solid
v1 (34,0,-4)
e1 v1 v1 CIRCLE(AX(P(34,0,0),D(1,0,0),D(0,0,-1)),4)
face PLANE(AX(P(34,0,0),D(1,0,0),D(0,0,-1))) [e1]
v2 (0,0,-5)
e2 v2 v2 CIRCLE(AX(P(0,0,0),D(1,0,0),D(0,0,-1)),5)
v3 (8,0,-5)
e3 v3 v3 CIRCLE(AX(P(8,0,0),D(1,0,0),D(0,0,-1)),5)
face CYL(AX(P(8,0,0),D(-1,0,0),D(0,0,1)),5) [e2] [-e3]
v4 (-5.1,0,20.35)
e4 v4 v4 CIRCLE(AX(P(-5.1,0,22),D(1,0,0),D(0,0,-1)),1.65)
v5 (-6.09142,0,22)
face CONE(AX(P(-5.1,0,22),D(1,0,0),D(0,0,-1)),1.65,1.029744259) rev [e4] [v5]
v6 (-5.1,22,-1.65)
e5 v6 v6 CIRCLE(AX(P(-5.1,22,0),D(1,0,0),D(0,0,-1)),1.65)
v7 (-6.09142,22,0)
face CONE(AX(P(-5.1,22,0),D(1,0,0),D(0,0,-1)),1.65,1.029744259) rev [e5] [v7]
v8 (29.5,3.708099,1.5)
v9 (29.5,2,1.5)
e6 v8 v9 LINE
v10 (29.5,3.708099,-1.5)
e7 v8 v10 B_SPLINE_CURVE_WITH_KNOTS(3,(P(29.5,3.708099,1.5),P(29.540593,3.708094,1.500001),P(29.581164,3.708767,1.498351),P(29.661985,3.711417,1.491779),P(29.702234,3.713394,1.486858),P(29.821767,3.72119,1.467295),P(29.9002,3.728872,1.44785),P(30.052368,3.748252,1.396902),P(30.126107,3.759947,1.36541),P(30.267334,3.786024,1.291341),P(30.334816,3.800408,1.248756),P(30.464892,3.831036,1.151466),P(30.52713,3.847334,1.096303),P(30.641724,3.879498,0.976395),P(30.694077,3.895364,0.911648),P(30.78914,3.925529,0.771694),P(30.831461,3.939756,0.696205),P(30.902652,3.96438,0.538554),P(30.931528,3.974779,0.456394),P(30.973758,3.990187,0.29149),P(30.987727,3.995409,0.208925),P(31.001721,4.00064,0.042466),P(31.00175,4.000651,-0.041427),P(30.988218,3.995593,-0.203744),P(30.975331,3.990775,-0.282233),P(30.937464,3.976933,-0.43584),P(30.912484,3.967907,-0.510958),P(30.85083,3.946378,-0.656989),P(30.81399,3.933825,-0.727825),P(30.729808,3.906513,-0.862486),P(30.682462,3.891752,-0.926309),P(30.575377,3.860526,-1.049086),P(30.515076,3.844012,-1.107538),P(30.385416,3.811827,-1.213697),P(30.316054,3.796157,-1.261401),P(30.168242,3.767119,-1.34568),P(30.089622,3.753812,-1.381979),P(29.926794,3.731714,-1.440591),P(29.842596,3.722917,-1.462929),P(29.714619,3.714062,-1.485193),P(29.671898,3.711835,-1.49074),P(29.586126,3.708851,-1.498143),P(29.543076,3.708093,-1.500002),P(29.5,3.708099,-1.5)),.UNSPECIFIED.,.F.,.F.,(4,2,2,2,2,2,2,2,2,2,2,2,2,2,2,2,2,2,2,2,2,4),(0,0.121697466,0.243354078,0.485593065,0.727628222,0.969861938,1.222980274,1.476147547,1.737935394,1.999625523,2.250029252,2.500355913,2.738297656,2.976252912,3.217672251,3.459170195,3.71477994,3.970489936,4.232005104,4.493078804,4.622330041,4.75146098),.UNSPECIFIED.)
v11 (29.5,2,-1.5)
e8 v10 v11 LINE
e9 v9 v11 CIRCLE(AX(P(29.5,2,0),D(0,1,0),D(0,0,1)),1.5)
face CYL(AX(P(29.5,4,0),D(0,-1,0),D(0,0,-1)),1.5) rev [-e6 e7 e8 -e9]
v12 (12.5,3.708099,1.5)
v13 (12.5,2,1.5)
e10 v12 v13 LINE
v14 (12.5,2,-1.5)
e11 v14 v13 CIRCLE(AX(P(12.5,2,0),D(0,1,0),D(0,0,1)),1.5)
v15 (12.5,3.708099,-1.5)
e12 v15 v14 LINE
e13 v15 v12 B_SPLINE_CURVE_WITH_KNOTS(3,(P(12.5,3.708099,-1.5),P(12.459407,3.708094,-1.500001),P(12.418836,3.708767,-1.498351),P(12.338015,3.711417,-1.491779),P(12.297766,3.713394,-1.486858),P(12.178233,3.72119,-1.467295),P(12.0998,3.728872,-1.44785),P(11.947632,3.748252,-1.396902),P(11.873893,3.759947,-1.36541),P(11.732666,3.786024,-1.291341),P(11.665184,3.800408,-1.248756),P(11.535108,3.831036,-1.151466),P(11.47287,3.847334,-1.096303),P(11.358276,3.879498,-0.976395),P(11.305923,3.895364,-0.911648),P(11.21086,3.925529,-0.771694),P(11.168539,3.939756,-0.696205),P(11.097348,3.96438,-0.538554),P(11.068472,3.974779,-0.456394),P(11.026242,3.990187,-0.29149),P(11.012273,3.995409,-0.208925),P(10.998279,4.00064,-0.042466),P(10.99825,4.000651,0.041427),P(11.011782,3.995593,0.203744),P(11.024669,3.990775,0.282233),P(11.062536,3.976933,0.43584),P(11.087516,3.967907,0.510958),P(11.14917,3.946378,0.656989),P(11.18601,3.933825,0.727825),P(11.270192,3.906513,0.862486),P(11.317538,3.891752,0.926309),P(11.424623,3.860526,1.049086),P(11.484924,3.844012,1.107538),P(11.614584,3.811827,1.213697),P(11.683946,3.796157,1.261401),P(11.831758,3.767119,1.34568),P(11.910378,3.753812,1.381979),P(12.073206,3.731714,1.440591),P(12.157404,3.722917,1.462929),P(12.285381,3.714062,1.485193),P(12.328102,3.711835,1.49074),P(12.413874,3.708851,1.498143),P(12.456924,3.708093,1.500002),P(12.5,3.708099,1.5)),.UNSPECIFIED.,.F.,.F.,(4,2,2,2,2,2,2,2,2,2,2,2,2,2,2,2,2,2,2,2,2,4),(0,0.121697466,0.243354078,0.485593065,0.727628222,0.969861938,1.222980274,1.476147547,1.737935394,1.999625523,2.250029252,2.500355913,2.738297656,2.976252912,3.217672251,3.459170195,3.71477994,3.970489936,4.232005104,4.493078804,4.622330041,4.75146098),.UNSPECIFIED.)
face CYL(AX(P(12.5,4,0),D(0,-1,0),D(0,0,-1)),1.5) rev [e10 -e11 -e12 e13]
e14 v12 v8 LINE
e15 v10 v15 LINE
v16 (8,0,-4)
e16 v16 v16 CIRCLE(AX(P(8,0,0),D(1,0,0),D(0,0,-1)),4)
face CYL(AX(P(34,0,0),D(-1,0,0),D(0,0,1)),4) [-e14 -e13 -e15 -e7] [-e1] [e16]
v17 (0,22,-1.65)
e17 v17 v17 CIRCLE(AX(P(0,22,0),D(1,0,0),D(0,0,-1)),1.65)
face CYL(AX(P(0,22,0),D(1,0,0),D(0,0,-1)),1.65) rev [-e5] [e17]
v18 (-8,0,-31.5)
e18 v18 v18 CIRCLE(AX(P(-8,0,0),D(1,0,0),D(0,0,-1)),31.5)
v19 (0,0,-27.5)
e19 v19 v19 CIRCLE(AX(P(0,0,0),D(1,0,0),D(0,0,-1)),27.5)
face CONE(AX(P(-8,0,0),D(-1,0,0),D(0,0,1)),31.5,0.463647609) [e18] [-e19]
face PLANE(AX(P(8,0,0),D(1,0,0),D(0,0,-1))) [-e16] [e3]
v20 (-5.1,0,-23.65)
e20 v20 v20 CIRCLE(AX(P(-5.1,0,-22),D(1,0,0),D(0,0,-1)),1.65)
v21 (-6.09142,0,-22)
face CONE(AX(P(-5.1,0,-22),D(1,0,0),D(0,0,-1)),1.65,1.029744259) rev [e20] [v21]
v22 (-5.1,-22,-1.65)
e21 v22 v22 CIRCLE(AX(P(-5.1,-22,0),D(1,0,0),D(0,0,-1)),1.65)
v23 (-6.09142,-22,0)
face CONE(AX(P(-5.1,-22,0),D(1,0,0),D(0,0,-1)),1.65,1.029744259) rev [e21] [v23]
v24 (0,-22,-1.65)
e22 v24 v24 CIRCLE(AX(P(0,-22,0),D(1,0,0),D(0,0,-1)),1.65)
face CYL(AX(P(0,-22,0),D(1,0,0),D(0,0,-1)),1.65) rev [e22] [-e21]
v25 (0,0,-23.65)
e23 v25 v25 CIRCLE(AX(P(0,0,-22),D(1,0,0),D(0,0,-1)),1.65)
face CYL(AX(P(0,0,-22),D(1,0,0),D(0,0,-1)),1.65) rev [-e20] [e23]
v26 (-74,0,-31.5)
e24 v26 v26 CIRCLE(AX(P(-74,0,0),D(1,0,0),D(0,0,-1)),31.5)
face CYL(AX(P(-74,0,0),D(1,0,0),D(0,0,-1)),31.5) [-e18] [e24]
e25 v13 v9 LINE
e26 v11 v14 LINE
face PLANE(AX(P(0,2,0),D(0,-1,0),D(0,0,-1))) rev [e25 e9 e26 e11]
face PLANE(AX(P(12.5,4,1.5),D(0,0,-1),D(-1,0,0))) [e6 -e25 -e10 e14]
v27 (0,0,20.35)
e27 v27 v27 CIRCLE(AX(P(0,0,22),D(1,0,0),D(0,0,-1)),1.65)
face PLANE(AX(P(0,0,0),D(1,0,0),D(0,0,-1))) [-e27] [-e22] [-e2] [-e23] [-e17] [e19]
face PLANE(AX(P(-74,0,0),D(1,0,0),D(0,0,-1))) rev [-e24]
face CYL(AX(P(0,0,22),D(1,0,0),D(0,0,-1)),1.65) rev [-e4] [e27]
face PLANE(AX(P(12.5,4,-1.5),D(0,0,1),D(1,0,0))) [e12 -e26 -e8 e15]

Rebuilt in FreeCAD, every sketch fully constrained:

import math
import FreeCAD as App
import Part
import Sketcher

V = App.Vector
Q = App.Units.Quantity


def add_polygon(sketch, points):
    """Adds a closed chain of lines whose ends are joined by coincident constraints."""
    first, n = sketch.GeometryCount, len(points)
    for a, b in zip(points, points[1:] + points[:1]):
        sketch.addGeometry(Part.LineSegment(App.Vector(*a, 0), App.Vector(*b, 0)), False)
    for i in range(n):
        sketch.addConstraint(Sketcher.Constraint("Coincident", first + i, 2, first + (i + 1) % n, 1))

doc = App.newDocument("Part")
body = doc.addObject("PartDesign::Body", "Body")

sketch1 = body.newObject("Sketcher::SketchObject", "Sketch")
sketch1.AttachmentSupport = (doc.getObject("YZ_Plane"), [""])
sketch1.MapMode = "FlatFace"
sketch1.addGeometry(Part.Circle(V(0, 0, 0), V(0, 0, 1), 32), False)
sketch1.addConstraint([
    Sketcher.Constraint("Coincident", 0, 3, -1, 1),
    Sketcher.Constraint("Diameter", 0, Q("63 mm")),
])
pad1 = body.newObject("PartDesign::Pad", "Pad")
pad1.Profile = sketch1
pad1.Length = 74
pad1.Reversed = True

sketch2 = body.newObject("Sketcher::SketchObject", "Sketch001")
sketch2.AttachmentSupport = (doc.getObject("YZ_Plane"), [""])
sketch2.MapMode = "FlatFace"
sketch2.addGeometry(Part.Circle(V(0, 0, 0), V(0, 0, 1), 5), False)
sketch2.addConstraint([
    Sketcher.Constraint("Coincident", 0, 3, -1, 1),
    Sketcher.Constraint("Diameter", 0, Q("10 mm")),
])
pad2 = body.newObject("PartDesign::Pad", "Pad001")
pad2.Profile = sketch2
pad2.Length = 8

sketch3 = body.newObject("Sketcher::SketchObject", "Sketch002")
sketch3.AttachmentSupport = (doc.getObject("YZ_Plane"), [""])
sketch3.MapMode = "FlatFace"
sketch3.AttachmentOffset = App.Placement(V(0, 0, 8), App.Rotation())
sketch3.addGeometry(Part.Circle(V(0, 0, 0), V(0, 0, 1), 4), False)
sketch3.addConstraint([
    Sketcher.Constraint("Coincident", 0, 3, -1, 1),
    Sketcher.Constraint("Diameter", 0, Q("8 mm")),
])
pad3 = body.newObject("PartDesign::Pad", "Pad002")
pad3.Profile = sketch3
pad3.Length = 26

sketch4 = body.newObject("Sketcher::SketchObject", "Sketch003")
sketch4.AttachmentSupport = (doc.getObject("XZ_Plane"), [""])
sketch4.MapMode = "FlatFace"
sketch4.AttachmentOffset = App.Placement(V(0, 0, -4), App.Rotation())
sketch4.addGeometry([
    Part.LineSegment(V(29.5, 1.5, 0), V(12.5, 1.5, 0)),
    Part.ArcOfCircle(Part.Circle(V(12.5, 0, 0), V(0, 0, 1), 1.5), math.radians(90), math.radians(270)),
    Part.LineSegment(V(12.5, -1.5, 0), V(29.5, -1.5, 0)),
    Part.ArcOfCircle(Part.Circle(V(29.5, 0, 0), V(0, 0, 1), 1.5), math.radians(-90), math.radians(90)),
], False)
sketch4.addConstraint([
    Sketcher.Constraint("Tangent", 0, 2, 1, 1),
    Sketcher.Constraint("Tangent", 1, 2, 2, 1),
    Sketcher.Constraint("Tangent", 2, 2, 3, 1),
    Sketcher.Constraint("Tangent", 3, 2, 0, 1),
    Sketcher.Constraint("Horizontal", 0),
    Sketcher.Constraint("Horizontal", 2),
    Sketcher.Constraint("PointOnObject", 1, 3, -1),
    Sketcher.Constraint("Radius", 1, Q("1.5 mm")),
    Sketcher.Constraint("DistanceX", 0, 2, 0, 1, Q("17 mm")),
    Sketcher.Constraint("DistanceX", -1, 1, 1, 3, Q("12.5 mm")),
])
pocket1 = body.newObject("PartDesign::Pocket", "Pocket")
pocket1.Profile = sketch4
pocket1.Length = 2
pocket1.Reversed = True

sketch5 = body.newObject("Sketcher::SketchObject", "Sketch004")
sketch5.AttachmentSupport = (doc.getObject("YZ_Plane"), [""])
sketch5.MapMode = "FlatFace"
sketch5.addGeometry([
    Part.Circle(V(22, 0, 0), V(0, 0, 1), 1.6),
    Part.Circle(V(0, -22, 0), V(0, 0, 1), 1.6),
    Part.Circle(V(-22, 0, 0), V(0, 0, 1), 1.6),
    Part.Circle(V(0, 22, 0), V(0, 0, 1), 1.6),
], False)
sketch5.addConstraint([
    Sketcher.Constraint("Equal", 0, 1),
    Sketcher.Constraint("Equal", 1, 2),
    Sketcher.Constraint("Equal", 2, 3),
    Sketcher.Constraint("Symmetric", 0, 3, 2, 3, -1, 1),
    Sketcher.Constraint("Symmetric", 1, 3, 3, 3, -1, 1),
    Sketcher.Constraint("PointOnObject", 0, 3, -1),
    Sketcher.Constraint("PointOnObject", 1, 3, -2),
    Sketcher.Constraint("Diameter", 0, Q("3.3 mm")),
    Sketcher.Constraint("DistanceX", -1, 1, 0, 3, Q("22 mm")),
    Sketcher.Constraint("DistanceY", 1, 3, -1, 1, Q("22 mm")),
])
doc.recompute()
hole = body.newObject("PartDesign::Hole", "Hole")
hole.Profile = sketch5
hole.ThreadType = "None"
hole.Diameter = 3.3
hole.DepthType = "Dimension"
hole.Depth = 5.1
hole.DrillPoint = "Angled"
hole.DrillPointAngle = 118

sketch6 = body.newObject("Sketcher::SketchObject", "Sketch005")
sketch6.AttachmentSupport = (doc.getObject("XY_Plane"), [""])
sketch6.MapMode = "FlatFace"
add_polygon(sketch6, [(0, 27.5), (0, 31.5), (-8, 31.5)])
sketch6.addConstraint([
    Sketcher.Constraint("Vertical", 0),
    Sketcher.Constraint("Horizontal", 1),
    Sketcher.Constraint("PointOnObject", 0, 2, -2),
    Sketcher.Constraint("DistanceX", 1, 2, 1, 1, Q("8 mm")),
    Sketcher.Constraint("DistanceY", 0, 1, 0, 2, Q("4 mm")),
    Sketcher.Constraint("DistanceY", -1, 1, 0, 2, Q("31.5 mm")),
])
groove = body.newObject("PartDesign::Groove", "Groove")
groove.Profile = sketch6
groove.ReferenceAxis = (sketch6, ["H_Axis"])
groove.Angle = 360

doc.recompute()
